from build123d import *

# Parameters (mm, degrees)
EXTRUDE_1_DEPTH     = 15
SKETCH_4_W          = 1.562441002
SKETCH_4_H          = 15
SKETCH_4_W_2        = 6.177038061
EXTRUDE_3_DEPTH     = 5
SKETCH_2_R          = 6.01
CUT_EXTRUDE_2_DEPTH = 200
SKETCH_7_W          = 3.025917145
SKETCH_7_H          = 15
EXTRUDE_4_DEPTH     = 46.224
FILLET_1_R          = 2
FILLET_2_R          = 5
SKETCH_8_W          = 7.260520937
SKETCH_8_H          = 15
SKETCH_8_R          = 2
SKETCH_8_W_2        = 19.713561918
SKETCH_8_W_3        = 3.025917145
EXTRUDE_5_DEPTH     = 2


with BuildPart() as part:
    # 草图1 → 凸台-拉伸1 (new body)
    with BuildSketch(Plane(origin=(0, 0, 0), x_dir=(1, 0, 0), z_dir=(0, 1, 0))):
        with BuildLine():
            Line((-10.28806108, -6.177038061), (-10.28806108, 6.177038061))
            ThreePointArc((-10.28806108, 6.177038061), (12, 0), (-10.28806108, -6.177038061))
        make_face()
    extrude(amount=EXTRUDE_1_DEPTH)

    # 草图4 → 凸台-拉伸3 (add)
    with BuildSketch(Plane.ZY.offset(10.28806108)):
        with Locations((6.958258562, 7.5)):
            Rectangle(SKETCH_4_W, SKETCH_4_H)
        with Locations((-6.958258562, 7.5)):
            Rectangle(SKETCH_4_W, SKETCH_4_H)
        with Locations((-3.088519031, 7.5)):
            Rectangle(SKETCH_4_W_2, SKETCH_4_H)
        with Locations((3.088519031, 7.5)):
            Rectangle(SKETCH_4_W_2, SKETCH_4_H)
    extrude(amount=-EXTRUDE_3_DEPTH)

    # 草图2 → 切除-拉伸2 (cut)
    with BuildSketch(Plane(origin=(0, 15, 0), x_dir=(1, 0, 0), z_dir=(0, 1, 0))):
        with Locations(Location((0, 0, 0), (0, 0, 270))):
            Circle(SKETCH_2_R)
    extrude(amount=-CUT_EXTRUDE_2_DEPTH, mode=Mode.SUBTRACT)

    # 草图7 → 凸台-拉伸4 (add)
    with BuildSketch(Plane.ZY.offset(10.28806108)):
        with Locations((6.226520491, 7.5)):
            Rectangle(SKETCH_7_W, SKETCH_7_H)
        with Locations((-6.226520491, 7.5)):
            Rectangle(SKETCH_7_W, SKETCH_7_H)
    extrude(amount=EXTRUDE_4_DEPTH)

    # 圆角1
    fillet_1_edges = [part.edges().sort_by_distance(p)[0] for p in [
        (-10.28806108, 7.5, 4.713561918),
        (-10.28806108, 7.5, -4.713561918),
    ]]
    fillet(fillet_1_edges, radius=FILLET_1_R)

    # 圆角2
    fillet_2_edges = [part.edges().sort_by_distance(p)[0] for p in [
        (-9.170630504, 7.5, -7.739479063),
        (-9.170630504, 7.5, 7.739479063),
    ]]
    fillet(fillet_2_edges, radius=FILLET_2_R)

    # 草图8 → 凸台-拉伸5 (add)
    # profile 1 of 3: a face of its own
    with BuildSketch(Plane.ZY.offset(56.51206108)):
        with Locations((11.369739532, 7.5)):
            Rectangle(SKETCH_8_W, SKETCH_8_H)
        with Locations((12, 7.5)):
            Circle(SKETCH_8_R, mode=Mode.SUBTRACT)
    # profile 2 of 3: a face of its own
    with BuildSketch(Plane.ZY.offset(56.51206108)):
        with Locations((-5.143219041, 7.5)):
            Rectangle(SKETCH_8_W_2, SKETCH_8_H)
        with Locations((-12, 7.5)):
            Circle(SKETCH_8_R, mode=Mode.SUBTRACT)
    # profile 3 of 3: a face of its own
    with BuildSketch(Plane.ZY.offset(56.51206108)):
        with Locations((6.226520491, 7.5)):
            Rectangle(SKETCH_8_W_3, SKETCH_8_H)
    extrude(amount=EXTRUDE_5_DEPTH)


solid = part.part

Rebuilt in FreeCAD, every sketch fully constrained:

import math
import FreeCAD as App
import Part
import Sketcher

V = App.Vector


def edges_at(feature, points):
    """Names of the edges that pass closest to the given points."""
    edges = feature.Shape.Edges
    near = lambda p: min(range(len(edges)), key=lambda i: edges[i].distToShape(Part.Vertex(*p))[0])
    return sorted({f"Edge{near(p) + 1}" for p in points})


def add_polygon(sketch, points):
    """Adds a closed chain of lines whose ends are joined by coincident constraints."""
    first, n = sketch.GeometryCount, len(points)
    for a, b in zip(points, points[1:] + points[:1]):
        sketch.addGeometry(Part.LineSegment(App.Vector(*a, 0), App.Vector(*b, 0)), False)
    for i in range(n):
        sketch.addConstraint(Sketcher.Constraint("Coincident", first + i, 2, first + (i + 1) % n, 1))

doc = App.newDocument("Part")
body = doc.addObject("PartDesign::Body", "Body")

# Sketch on XZ plane
sketch1 = body.newObject("Sketcher::SketchObject", "Sketch")
sketch1.AttachmentSupport = (doc.getObject("XZ_Plane"), [""])
sketch1.MapMode = "FlatFace"
sketch1.addGeometry([
    Part.LineSegment(V(-10, -6, 0), V(-10, 6, 0)),
    Part.ArcOfCircle(Part.Circle(V(0, 0, 0), V(0, 0, 1), 12), math.radians(-149), math.radians(149)),
], False)
sketch1.addConstraint([
    Sketcher.Constraint("Coincident", 0, 1, 1, 1),
    Sketcher.Constraint("Coincident", 1, 2, 0, 2),
    Sketcher.Constraint("Vertical", 0),
    Sketcher.Constraint("Coincident", 1, 3, -1, 1),
    Sketcher.Constraint("Radius", 1, 12.0),
    Sketcher.Constraint("DistanceY", 0, 1, 0, 2, 12.354076),
])
pad1 = body.newObject("PartDesign::Pad", "Pad")
pad1.Profile = sketch1
pad1.Length = 15
pad1.Reversed = True

# Sketch on YZ plane
sketch2 = body.newObject("Sketcher::SketchObject", "Sketch001")
sketch2.AttachmentSupport = (doc.getObject("YZ_Plane"), [""])
sketch2.MapMode = "FlatFace"
sketch2.AttachmentOffset = App.Placement(V(0, 0, -10.288061), App.Rotation())
add_polygon(sketch2, [(0, 8), (15, 8), (15, -8), (0, -8)])  # lines 0-3
sketch2.addConstraint([
    Sketcher.Constraint("Horizontal", 0),
    Sketcher.Constraint("Vertical", 1),
    Sketcher.Constraint("Horizontal", 2),
    Sketcher.Constraint("Vertical", 3),
    Sketcher.Constraint("Symmetric", 2, 2, 3, 2, -1, 1),
    Sketcher.Constraint("DistanceX", 0, 1, 0, 2, 15.0),
    Sketcher.Constraint("DistanceY", 1, 2, 1, 1, 15.478958),
])
pad2 = body.newObject("PartDesign::Pad", "Pad001")
pad2.Profile = sketch2
pad2.Length = 5

# Sketch on XZ plane
sketch3 = body.newObject("Sketcher::SketchObject", "Sketch002")
sketch3.AttachmentSupport = (doc.getObject("XZ_Plane"), [""])
sketch3.MapMode = "FlatFace"
sketch3.AttachmentOffset = App.Placement(V(0, 0, -15), App.Rotation())
sketch3.addGeometry(Part.Circle(V(0, 0, 0), V(0, 0, 1), 6), False)
sketch3.addConstraint([
    Sketcher.Constraint("Coincident", 0, 3, -1, 1),
    Sketcher.Constraint("Diameter", 0, 12.02),
])
pocket1 = body.newObject("PartDesign::Pocket", "Pocket")
pocket1.Profile = sketch3
pocket1.Length = 200
pocket1.Reversed = True

# Sketch on YZ plane
sketch4 = body.newObject("Sketcher::SketchObject", "Sketch003")
sketch4.AttachmentSupport = (doc.getObject("YZ_Plane"), [""])
sketch4.MapMode = "FlatFace"
sketch4.AttachmentOffset = App.Placement(V(0, 0, -10.288061), App.Rotation())
add_polygon(sketch4, [(15, 4.7), (0, 4.7), (0, 7.7), (15, 7.7)])  # lines 0-3
add_polygon(sketch4, [(15, -7.7), (0, -7.7), (0, -4.7), (15, -4.7)])  # lines 4-7
sketch4.addConstraint([
    Sketcher.Constraint("Horizontal", 0),
    Sketcher.Constraint("Vertical", 1),
    Sketcher.Constraint("Horizontal", 2),
    Sketcher.Constraint("Vertical", 3),
    Sketcher.Constraint("Horizontal", 4),
    Sketcher.Constraint("Vertical", 5),
    Sketcher.Constraint("Horizontal", 6),
    Sketcher.Constraint("Vertical", 7),
    Sketcher.Constraint("Symmetric", 1, 2, 4, 2, -1, 1),
    Sketcher.Constraint("Symmetric", 0, 2, 5, 2, -1),
    Sketcher.Constraint("Vertical", 3, 2, 6, 2),
    Sketcher.Constraint("DistanceX", 0, 2, 0, 1, 15.0),
    Sketcher.Constraint("DistanceY", 1, 1, 1, 2, 3.025917),
    Sketcher.Constraint("DistanceY", -1, 1, 0, 2, 4.713562),
])
pad3 = body.newObject("PartDesign::Pad", "Pad002")
pad3.Profile = sketch4
pad3.Length = 46.224
pad3.Reversed = True
doc.recompute()

fillet = body.newObject("PartDesign::Fillet", "Fillet")
fillet.Base = (pad3, edges_at(pad3, [(-10.288, 7.5, 4.714), (-10.288, 7.5, -4.714)]))
fillet.Radius = 2
doc.recompute()

fillet2 = body.newObject("PartDesign::Fillet", "Fillet001")
fillet2.Base = (fillet, edges_at(fillet, [(-9.171, 7.5, -7.739), (-9.171, 7.5, 7.739)]))
fillet2.Radius = 5

# Sketch on YZ plane
sketch5 = body.newObject("Sketcher::SketchObject", "Sketch004")
sketch5.AttachmentSupport = (doc.getObject("YZ_Plane"), [""])
sketch5.MapMode = "FlatFace"
sketch5.AttachmentOffset = App.Placement(V(0, 0, -56.512061), App.Rotation())
add_polygon(sketch5, [(0, 15), (15, 15), (15, -15), (0, -15)])  # lines 0-3
sketch5.addGeometry(Part.Circle(V(7.5, 12, 0), V(0, 0, 1), 2), False)  # 4
sketch5.addGeometry(Part.Circle(V(7.5, -12, 0), V(0, 0, 1), 2), False)  # 5
sketch5.addConstraint([
    Sketcher.Constraint("Horizontal", 0),
    Sketcher.Constraint("Vertical", 1),
    Sketcher.Constraint("Horizontal", 2),
    Sketcher.Constraint("Vertical", 3),
    Sketcher.Constraint("Equal", 4, 5),
    Sketcher.Constraint("Symmetric", 2, 2, 3, 2, -1, 1),
    Sketcher.Constraint("Symmetric", 4, 3, 5, 3, -1),
    Sketcher.Constraint("Diameter", 4, 4.0),
    Sketcher.Constraint("DistanceX", 0, 1, 0, 2, 15.0),
    Sketcher.Constraint("DistanceY", 1, 2, 1, 1, 30.0),
    Sketcher.Constraint("DistanceY", -1, 1, 4, 3, 12.0),
    Sketcher.Constraint("DistanceX", -1, 1, 4, 3, 7.5),
])
pad4 = body.newObject("PartDesign::Pad", "Pad003")
pad4.Profile = sketch5
pad4.Length = 2
pad4.Reversed = True

doc.recompute()
